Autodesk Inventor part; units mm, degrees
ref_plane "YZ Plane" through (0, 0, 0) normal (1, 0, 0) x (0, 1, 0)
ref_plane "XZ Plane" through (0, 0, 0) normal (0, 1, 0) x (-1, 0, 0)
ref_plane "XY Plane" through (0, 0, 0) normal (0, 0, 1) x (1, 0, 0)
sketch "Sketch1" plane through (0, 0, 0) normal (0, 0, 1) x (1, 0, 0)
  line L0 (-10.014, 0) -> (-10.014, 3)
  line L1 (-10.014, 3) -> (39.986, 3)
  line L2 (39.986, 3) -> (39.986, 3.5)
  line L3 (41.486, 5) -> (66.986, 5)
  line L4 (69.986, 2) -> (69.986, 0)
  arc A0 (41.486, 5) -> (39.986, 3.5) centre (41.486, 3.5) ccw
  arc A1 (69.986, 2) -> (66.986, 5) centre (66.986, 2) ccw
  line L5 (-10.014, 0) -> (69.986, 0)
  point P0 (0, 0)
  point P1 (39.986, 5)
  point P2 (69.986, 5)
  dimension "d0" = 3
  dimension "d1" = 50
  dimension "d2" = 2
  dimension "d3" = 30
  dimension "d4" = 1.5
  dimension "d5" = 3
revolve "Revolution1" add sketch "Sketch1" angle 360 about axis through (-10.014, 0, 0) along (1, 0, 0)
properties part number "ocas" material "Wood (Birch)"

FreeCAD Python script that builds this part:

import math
import FreeCAD as App
import Part
import Sketcher
from FreeCAD import Vector
Q = App.Units.Quantity

doc = App.newDocument("Part")
body = doc.addObject("PartDesign::Body", "Body")

# Sketch on XY plane
sketch1 = body.newObject("Sketcher::SketchObject", "Sketch")
sketch1.AttachmentSupport = (doc.getObject("XY_Plane"), [""])
sketch1.MapMode = "FlatFace"
sketch1.addGeometry(Part.LineSegment(Vector(-10, 3, 0), Vector(-10, 0, 0)), False)
sketch1.addGeometry(Part.LineSegment(Vector(-10, 0, 0), Vector(70, 0, 0)), False)
sketch1.addGeometry(Part.LineSegment(Vector(70, 0, 0), Vector(70, 2, 0)), False)
sketch1.addGeometry(Part.ArcOfCircle(Part.Circle(Vector(67, 2, 0), Vector(0, 0, 1), 3), math.radians(0), math.radians(90)), False)
sketch1.addGeometry(Part.LineSegment(Vector(67, 5, 0), Vector(41.5, 5, 0)), False)
sketch1.addGeometry(Part.ArcOfCircle(Part.Circle(Vector(41.5, 3.5, 0), Vector(0, 0, 1), 1.5), math.radians(90), math.radians(180)), False)
sketch1.addGeometry(Part.LineSegment(Vector(40, 3.5, 0), Vector(40, 3, 0)), False)
sketch1.addGeometry(Part.LineSegment(Vector(40, 3, 0), Vector(-10, 3, 0)), False)
sketch1.addConstraint(Sketcher.Constraint("Coincident", 0, 2, 1, 1))
sketch1.addConstraint(Sketcher.Constraint("Coincident", 1, 2, 2, 1))
sketch1.addConstraint(Sketcher.Constraint("Tangent", 2, 2, 3, 1))
sketch1.addConstraint(Sketcher.Constraint("Tangent", 3, 2, 4, 1))
sketch1.addConstraint(Sketcher.Constraint("Tangent", 4, 2, 5, 1))
sketch1.addConstraint(Sketcher.Constraint("Tangent", 5, 2, 6, 1))
sketch1.addConstraint(Sketcher.Constraint("Coincident", 6, 2, 7, 1))
sketch1.addConstraint(Sketcher.Constraint("Coincident", 7, 2, 0, 1))
sketch1.addConstraint(Sketcher.Constraint("Vertical", 0))
sketch1.addConstraint(Sketcher.Constraint("Horizontal", 1))
sketch1.addConstraint(Sketcher.Constraint("Vertical", 2))
sketch1.addConstraint(Sketcher.Constraint("Horizontal", 4))
sketch1.addConstraint(Sketcher.Constraint("Vertical", 6))
sketch1.addConstraint(Sketcher.Constraint("Horizontal", 7))
sketch1.addConstraint(Sketcher.Constraint("PointOnObject", 0, 2, -1))
sketch1.addConstraint(Sketcher.Constraint("Radius", 3, Q("3 mm")))
sketch1.addConstraint(Sketcher.Constraint("Radius", 5, Q("1.5 mm")))
sketch1.addConstraint(Sketcher.Constraint("DistanceX", 7, 2, 7, 1, Q("50 mm")))
sketch1.addConstraint(Sketcher.Constraint("DistanceY", 0, 2, 0, 1, Q("3 mm")))
sketch1.addConstraint(Sketcher.Constraint("DistanceY", 2, 1, 2, 2, Q("2 mm")))
sketch1.addConstraint(Sketcher.Constraint("DistanceX", 5, 2, 2, 2, Q("30 mm")))
sketch1.addConstraint(Sketcher.Constraint("DistanceX", -1, 1, 3, 3, Q("66.986 mm")))
revolution = body.newObject("PartDesign::Revolution", "Revolution")
revolution.Profile = sketch1
revolution.ReferenceAxis = (sketch1, ["H_Axis"])
revolution.Angle = 360

doc.recompute()
